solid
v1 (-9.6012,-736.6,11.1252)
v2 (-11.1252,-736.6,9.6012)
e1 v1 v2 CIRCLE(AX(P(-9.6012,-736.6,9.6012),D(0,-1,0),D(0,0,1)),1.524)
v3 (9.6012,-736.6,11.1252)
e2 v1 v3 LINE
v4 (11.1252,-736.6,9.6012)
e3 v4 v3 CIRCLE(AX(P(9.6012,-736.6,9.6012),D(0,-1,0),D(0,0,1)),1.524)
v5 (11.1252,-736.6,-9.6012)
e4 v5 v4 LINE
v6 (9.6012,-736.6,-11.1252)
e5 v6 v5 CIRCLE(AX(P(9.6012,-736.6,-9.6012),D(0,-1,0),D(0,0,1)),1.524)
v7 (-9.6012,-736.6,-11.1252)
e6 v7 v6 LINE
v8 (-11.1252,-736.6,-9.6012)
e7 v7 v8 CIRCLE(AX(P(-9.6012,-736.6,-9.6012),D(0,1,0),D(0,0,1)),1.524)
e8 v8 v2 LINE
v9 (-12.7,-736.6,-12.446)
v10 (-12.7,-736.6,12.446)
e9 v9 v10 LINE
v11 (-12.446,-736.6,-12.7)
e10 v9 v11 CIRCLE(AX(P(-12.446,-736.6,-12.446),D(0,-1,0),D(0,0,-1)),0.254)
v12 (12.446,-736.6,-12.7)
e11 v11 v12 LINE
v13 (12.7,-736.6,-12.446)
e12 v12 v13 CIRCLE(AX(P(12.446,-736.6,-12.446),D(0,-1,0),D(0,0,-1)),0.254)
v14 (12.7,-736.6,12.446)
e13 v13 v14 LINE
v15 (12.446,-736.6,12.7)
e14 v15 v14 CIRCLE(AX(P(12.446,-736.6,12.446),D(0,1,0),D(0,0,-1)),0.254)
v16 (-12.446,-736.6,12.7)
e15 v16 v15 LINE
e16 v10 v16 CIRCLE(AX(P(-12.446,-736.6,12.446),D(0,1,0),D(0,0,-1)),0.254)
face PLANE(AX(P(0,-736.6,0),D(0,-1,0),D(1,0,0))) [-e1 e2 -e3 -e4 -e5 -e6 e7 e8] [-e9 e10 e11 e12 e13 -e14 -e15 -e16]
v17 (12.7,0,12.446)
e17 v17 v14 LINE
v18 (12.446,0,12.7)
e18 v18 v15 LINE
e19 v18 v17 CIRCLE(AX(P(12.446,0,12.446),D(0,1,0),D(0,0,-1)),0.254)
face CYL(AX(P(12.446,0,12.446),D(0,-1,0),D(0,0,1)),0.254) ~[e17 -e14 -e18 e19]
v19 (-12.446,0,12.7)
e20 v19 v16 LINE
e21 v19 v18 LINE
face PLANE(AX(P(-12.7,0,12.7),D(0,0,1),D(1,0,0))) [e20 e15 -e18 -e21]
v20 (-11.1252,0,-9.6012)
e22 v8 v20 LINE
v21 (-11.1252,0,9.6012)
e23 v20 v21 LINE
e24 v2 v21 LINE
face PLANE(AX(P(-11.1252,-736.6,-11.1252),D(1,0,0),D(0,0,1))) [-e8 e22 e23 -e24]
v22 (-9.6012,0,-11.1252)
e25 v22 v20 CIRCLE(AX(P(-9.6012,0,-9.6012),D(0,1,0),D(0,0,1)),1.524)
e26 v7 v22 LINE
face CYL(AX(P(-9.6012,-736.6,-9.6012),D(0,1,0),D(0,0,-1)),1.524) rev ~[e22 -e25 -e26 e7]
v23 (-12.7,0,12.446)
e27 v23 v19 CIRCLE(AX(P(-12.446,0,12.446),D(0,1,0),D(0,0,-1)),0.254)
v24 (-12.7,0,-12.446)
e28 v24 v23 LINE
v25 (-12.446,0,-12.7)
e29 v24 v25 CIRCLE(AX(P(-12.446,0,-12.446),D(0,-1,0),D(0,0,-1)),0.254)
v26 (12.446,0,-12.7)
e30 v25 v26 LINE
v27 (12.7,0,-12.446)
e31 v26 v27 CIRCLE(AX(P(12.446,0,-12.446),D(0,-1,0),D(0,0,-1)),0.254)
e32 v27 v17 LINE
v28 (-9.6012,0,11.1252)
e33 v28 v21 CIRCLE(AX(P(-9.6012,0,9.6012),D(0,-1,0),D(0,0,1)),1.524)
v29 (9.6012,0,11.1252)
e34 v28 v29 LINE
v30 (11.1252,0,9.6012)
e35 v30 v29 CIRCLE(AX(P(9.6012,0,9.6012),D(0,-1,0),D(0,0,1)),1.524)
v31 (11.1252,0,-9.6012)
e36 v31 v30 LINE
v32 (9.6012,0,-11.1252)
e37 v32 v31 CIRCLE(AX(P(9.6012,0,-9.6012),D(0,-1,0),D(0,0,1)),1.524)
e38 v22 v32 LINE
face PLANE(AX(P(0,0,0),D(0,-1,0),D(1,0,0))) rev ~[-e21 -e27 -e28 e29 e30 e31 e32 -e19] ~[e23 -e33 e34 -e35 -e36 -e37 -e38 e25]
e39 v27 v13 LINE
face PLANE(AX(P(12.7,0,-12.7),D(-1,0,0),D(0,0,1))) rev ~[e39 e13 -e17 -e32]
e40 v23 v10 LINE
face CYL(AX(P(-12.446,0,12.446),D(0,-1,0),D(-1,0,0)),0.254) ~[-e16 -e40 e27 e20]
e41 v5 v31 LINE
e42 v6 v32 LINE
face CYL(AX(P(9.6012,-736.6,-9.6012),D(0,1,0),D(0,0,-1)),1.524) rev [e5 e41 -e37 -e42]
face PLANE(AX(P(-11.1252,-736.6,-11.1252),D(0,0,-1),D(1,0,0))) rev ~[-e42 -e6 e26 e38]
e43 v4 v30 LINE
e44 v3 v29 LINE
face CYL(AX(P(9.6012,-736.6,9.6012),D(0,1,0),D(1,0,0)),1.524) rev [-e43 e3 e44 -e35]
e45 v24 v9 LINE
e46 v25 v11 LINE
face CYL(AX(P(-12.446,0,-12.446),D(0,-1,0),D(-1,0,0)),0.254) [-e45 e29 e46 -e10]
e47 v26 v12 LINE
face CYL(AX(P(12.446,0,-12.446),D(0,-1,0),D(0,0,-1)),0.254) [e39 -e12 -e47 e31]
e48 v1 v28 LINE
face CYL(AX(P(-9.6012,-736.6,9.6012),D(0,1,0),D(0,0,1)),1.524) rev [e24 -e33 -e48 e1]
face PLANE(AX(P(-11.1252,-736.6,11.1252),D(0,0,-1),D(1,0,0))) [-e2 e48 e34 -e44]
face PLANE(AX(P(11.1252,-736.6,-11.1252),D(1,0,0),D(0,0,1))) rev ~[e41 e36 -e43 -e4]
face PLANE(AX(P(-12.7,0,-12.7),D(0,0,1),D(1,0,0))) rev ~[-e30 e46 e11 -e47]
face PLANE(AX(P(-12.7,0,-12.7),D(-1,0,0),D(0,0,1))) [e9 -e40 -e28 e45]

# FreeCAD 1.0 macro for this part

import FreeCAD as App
import Part
import Sketcher

V = App.Vector
Q = App.Units.Quantity


def edges_at(feature, points):
    """Names of the edges that pass closest to the given points."""
    edges = feature.Shape.Edges
    near = lambda p: min(range(len(edges)), key=lambda i: edges[i].distToShape(Part.Vertex(*p))[0])
    return sorted({f"Edge{near(p) + 1}" for p in points})


def add_polygon(sketch, points):
    """Adds a closed chain of lines whose ends are joined by coincident constraints."""
    first, n = sketch.GeometryCount, len(points)
    for a, b in zip(points, points[1:] + points[:1]):
        sketch.addGeometry(Part.LineSegment(App.Vector(*a, 0), App.Vector(*b, 0)), False)
    for i in range(n):
        sketch.addConstraint(Sketcher.Constraint("Coincident", first + i, 2, first + (i + 1) % n, 1))

doc = App.newDocument("Part")
body = doc.addObject("PartDesign::Body", "Body")

# Sketch on XZ plane
sketch1 = doc.addObject("Sketcher::SketchObject", "Sketch")
body.addObject(sketch1)
sketch1.AttachmentSupport = (doc.XZ_Plane, [""])
sketch1.MapMode = "FlatFace"
add_polygon(sketch1, [(-12.7, 12.7), (-12.7, -12.7), (12.7, -12.7), (12.7, 12.7)])  # lines 0-3
sketch1.addConstraint(Sketcher.Constraint("Vertical", 0))
sketch1.addConstraint(Sketcher.Constraint("Horizontal", 1))
sketch1.addConstraint(Sketcher.Constraint("Vertical", 2))
sketch1.addConstraint(Sketcher.Constraint("Horizontal", 3))
sketch1.addConstraint(Sketcher.Constraint("Symmetric", 0, 2, 2, 2, -1, 1))
sketch1.addConstraint(Sketcher.Constraint("Equal", 3, 0))
sketch1.addConstraint(Sketcher.Constraint("DistanceX", 1, 1, 1, 2, Q("1 in")))
pad1 = doc.addObject("PartDesign::Pad", "Pad")
body.addObject(pad1)
pad1.Profile = sketch1
pad1.Length = Q("29 in")

# Sketch on XZ plane
sketch2 = doc.addObject("Sketcher::SketchObject", "Sketch001")
body.addObject(sketch2)
sketch2.AttachmentSupport = (doc.XZ_Plane, [""])
sketch2.MapMode = "FlatFace"
sketch2.AttachmentOffset = App.Placement(V(0, 0, 29 * 25.4), App.Rotation())
add_polygon(sketch2, [(-11.1252, 11.1252), (-11.1252, -11.1252), (11.1252, -11.1252), (11.1252, 11.1252)])  # lines 0-3
sketch2.addConstraint(Sketcher.Constraint("Vertical", 0))
sketch2.addConstraint(Sketcher.Constraint("Horizontal", 1))
sketch2.addConstraint(Sketcher.Constraint("Vertical", 2))
sketch2.addConstraint(Sketcher.Constraint("Horizontal", 3))
sketch2.addConstraint(Sketcher.Constraint("Symmetric", 0, 2, 2, 2, -1, 1))
sketch2.addConstraint(Sketcher.Constraint("Equal", 3, 0))
sketch2.addConstraint(Sketcher.Constraint("DistanceX", 1, 1, 1, 2, Q("0.876 in")))
pocket1 = doc.addObject("PartDesign::Pocket", "Pocket")
body.addObject(pocket1)
pocket1.Profile = sketch2
pocket1.Type = "ThroughAll"
doc.recompute()

fillet = doc.addObject("PartDesign::Fillet", "Fillet")
body.addObject(fillet)
fillet.Base = (pocket1, edges_at(pocket1, [
    (-11.125, -368.3, 11.125),
    (11.125, -368.3, -11.125),
    (11.125, -368.3, 11.125),
    (-11.125, -368.3, -11.125),
]))
fillet.Radius = Q("0.06 in")
doc.recompute()

fillet2 = doc.addObject("PartDesign::Fillet", "Fillet001")
body.addObject(fillet2)
fillet2.Base = (fillet, edges_at(fillet, [
    (12.7, -368.3, 12.7),
    (12.7, -368.3, -12.7),
    (-12.7, -368.3, -12.7),
    (-12.7, -368.3, 12.7),
]))
fillet2.Radius = Q("0.01 in")

doc.recompute()
